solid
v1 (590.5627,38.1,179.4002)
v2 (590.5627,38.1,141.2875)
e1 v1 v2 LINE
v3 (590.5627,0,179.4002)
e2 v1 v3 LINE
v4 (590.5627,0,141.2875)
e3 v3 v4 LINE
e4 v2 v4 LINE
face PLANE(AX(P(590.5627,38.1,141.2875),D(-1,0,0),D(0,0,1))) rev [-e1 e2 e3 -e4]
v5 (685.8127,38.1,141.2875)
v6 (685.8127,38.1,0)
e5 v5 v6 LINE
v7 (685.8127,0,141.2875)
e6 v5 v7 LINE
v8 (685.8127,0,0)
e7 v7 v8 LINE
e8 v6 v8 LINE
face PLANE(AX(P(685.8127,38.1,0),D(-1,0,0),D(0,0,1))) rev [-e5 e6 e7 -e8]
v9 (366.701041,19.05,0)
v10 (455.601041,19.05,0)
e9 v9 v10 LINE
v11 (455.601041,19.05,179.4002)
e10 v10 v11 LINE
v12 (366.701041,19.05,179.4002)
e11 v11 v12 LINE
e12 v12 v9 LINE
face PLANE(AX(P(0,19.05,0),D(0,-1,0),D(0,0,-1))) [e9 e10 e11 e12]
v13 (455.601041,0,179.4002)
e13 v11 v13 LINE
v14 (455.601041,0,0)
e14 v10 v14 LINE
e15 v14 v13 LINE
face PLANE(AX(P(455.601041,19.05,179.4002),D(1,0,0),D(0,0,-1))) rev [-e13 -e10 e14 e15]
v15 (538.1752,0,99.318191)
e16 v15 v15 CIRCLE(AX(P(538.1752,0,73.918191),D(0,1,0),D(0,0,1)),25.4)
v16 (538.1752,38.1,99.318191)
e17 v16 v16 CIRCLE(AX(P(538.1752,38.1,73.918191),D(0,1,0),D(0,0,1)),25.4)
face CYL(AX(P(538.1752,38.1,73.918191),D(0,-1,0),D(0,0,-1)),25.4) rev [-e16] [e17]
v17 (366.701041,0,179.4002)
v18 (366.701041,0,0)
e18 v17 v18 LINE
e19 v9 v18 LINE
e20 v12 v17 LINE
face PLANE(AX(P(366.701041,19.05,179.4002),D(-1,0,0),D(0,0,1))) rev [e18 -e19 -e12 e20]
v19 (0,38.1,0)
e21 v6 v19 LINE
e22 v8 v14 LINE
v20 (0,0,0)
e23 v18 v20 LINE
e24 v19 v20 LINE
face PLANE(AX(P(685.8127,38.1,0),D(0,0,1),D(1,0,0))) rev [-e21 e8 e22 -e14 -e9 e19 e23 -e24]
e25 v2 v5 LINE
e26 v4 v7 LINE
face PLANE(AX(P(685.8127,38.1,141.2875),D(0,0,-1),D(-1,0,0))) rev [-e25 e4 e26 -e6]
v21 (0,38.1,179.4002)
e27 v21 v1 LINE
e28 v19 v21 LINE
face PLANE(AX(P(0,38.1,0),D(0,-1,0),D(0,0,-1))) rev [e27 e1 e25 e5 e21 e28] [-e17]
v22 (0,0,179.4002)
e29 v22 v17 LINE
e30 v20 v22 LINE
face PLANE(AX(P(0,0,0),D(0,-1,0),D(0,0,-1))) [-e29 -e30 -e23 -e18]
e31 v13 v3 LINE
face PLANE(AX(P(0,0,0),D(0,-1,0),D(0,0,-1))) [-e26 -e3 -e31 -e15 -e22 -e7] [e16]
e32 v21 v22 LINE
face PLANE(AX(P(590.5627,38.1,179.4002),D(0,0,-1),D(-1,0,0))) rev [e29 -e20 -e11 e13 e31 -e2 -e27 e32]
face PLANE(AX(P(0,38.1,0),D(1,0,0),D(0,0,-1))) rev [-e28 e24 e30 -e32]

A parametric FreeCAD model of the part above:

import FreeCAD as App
import Part
import Sketcher

V = App.Vector
Q = App.Units.Quantity

doc = App.newDocument("Part")
body = doc.addObject("PartDesign::Body", "Body")

# Sketch on XZ plane
sketch1 = body.newObject("Sketcher::SketchObject", "Sketch")
sketch1.AttachmentSupport = (doc.getObject("XZ_Plane"), [""])
sketch1.MapMode = "FlatFace"
sketch1.addGeometry([
    Part.LineSegment(V(685.8127, 0, 0), V(0, 0, 0)),  # 0
    Part.LineSegment(V(0, 0, 0), V(0, 179.4002, 0)),  # 1
    Part.LineSegment(V(0, 179.4002, 0), V(590.5627, 179.4002, 0)),  # 2
    Part.LineSegment(V(590.5627, 179.4002, 0), V(590.5627, 141.2875, 0)),  # 3
    Part.LineSegment(V(590.5627, 141.2875, 0), V(685.8127, 141.2875, 0)),  # 4
    Part.LineSegment(V(685.8127, 141.2875, 0), V(685.8127, 0, 0)),  # 5
    Part.Circle(V(538.1752, 73.918191, 0), V(0, 0, 1), 25.4),  # 6
], False)
sketch1.addConstraint([
    Sketcher.Constraint("Coincident", 0, 2, 1, 1),
    Sketcher.Constraint("Coincident", 1, 2, 2, 1),
    Sketcher.Constraint("Coincident", 2, 2, 3, 1),
    Sketcher.Constraint("Coincident", 3, 2, 4, 1),
    Sketcher.Constraint("Coincident", 4, 2, 5, 1),
    Sketcher.Constraint("Coincident", 5, 2, 0, 1),
    Sketcher.Constraint("Horizontal", 0),
    Sketcher.Constraint("Vertical", 1),
    Sketcher.Constraint("Horizontal", 2),
    Sketcher.Constraint("Vertical", 3),
    Sketcher.Constraint("Horizontal", 4),
    Sketcher.Constraint("Vertical", 5),
    Sketcher.Constraint("Coincident", 0, 2, -1, 1),
    Sketcher.Constraint("Diameter", 6, Q("2 in")),
    Sketcher.Constraint("DistanceX", 4, 1, 4, 2, Q("3.75 in")),
    Sketcher.Constraint("DistanceY", 1, 1, 1, 2, Q("7.063 in")),
    Sketcher.Constraint("DistanceY", 5, 2, 5, 1, Q("5.5625 in")),
    Sketcher.Constraint("DistanceX", 0, 2, 0, 1, Q("27.0005 in")),
    Sketcher.Constraint("DistanceX", -1, 1, 6, 3, Q("21.188 in")),
    Sketcher.Constraint("DistanceY", -1, 1, 6, 3, 73.918191),
])
pad1 = body.newObject("PartDesign::Pad", "Pad")
pad1.Profile = sketch1
pad1.Length = Q("1.5 in")
pad1.Reversed = True

# Sketch on XZ plane
sketch2 = body.newObject("Sketcher::SketchObject", "Sketch001")
sketch2.AttachmentSupport = (doc.getObject("XZ_Plane"), [""])
sketch2.MapMode = "FlatFace"
sketch2.addGeometry([
    Part.LineSegment(V(366.701041, 179.4002, 0), V(366.701041, 0, 0)),
    Part.LineSegment(V(366.701041, 0, 0), V(455.601041, 0, 0)),
    Part.LineSegment(V(455.601041, 0, 0), V(455.601041, 179.4002, 0)),
    Part.LineSegment(V(455.601041, 179.4002, 0), V(366.701041, 179.4002, 0)),
], False)
sketch2.addConstraint([
    Sketcher.Constraint("Coincident", 0, 2, 1, 1),
    Sketcher.Constraint("Coincident", 1, 2, 2, 1),
    Sketcher.Constraint("Coincident", 2, 2, 3, 1),
    Sketcher.Constraint("Coincident", 3, 2, 0, 1),
    Sketcher.Constraint("Vertical", 0),
    Sketcher.Constraint("Horizontal", 1),
    Sketcher.Constraint("Vertical", 2),
    Sketcher.Constraint("Horizontal", 3),
    Sketcher.Constraint("PointOnObject", 0, 2, -1),
    Sketcher.Constraint("DistanceX", 1, 1, 1, 2, Q("3.5 in")),
    Sketcher.Constraint("DistanceY", 0, 2, 0, 1, Q("7.063 in")),
    Sketcher.Constraint("DistanceX", -1, 1, 0, 2, 366.701041),
])
pocket1 = body.newObject("PartDesign::Pocket", "Pocket")
pocket1.Profile = sketch2
pocket1.Length = Q("0.75 in")

doc.recompute()
